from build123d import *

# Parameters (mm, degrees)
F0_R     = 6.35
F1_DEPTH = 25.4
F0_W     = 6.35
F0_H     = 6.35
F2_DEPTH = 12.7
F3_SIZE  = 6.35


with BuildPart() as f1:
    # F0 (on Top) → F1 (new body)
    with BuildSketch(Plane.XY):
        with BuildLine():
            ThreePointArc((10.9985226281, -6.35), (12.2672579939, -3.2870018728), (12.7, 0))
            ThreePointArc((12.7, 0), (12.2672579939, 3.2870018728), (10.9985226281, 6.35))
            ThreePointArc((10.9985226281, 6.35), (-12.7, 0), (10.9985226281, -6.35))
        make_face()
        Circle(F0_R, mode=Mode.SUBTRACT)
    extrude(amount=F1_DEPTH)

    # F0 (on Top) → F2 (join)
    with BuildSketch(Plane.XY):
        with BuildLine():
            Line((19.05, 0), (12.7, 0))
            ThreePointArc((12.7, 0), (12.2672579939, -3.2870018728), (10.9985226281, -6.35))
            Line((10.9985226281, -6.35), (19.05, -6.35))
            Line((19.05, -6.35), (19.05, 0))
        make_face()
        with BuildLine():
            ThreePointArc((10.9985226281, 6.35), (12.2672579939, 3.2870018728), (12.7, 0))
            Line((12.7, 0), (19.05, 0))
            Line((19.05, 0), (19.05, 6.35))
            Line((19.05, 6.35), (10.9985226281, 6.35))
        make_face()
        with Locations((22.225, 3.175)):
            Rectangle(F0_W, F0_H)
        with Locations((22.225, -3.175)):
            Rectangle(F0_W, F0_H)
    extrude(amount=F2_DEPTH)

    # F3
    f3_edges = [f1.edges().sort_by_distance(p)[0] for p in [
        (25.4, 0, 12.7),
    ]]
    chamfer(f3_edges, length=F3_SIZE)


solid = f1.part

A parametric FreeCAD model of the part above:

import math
import FreeCAD as App
import Part
import Sketcher
from FreeCAD import Vector
Q = App.Units.Quantity


def edges_at(feature, points):
    """Names of the edges that pass closest to the given points."""
    edges = feature.Shape.Edges
    near = lambda p: min(range(len(edges)), key=lambda i: edges[i].distToShape(Part.Vertex(*p))[0])
    return sorted({f"Edge{near(p) + 1}" for p in points})

doc = App.newDocument("Part")
body = doc.addObject("PartDesign::Body", "Body")

# Sketch on XY plane
sketch1 = doc.addObject("Sketcher::SketchObject", "Sketch")
body.addObject(sketch1)
sketch1.AttachmentSupport = (doc.XY_Plane, [""])
sketch1.MapMode = "FlatFace"
sketch1.addGeometry([
    Part.ArcOfCircle(Part.Circle(Vector(0, 0, 0), Vector(0, 0, 1), 13), math.radians(-30), math.radians(0)),
    Part.ArcOfCircle(Part.Circle(Vector(0, 0, 0), Vector(0, 0, 1), 13), math.radians(0), math.radians(30)),
    Part.ArcOfCircle(Part.Circle(Vector(0, 0, 0), Vector(0, 0, 1), 13), math.radians(30), math.radians(330)),
    Part.Circle(Vector(0, 0, 0), Vector(0, 0, 1), 6),
], False)
sketch1.addConstraint([
    Sketcher.Constraint("Tangent", 0, 2, 1, 1),
    Sketcher.Constraint("Tangent", 1, 2, 2, 1),
    Sketcher.Constraint("Tangent", 2, 2, 0, 1),
    Sketcher.Constraint("Coincident", 0, 3, -1, 1),
    Sketcher.Constraint("Coincident", 3, 3, -1, 1),
    Sketcher.Constraint("PointOnObject", 0, 2, -1),
    Sketcher.Constraint("Vertical", 1, 2, 2, 2),
    Sketcher.Constraint("Diameter", 3, Q("0.5 in")),
    Sketcher.Constraint("Radius", 0, Q("0.5 in")),
    Sketcher.Constraint("DistanceY", -1, 1, 1, 2, Q("0.25 in")),
])
pad1 = doc.addObject("PartDesign::Pad", "Pad")
body.addObject(pad1)
pad1.Profile = sketch1
pad1.Length = Q("1 in")

# Sketch on XY plane
sketch2 = doc.addObject("Sketcher::SketchObject", "Sketch001")
body.addObject(sketch2)
sketch2.AttachmentSupport = (doc.XY_Plane, [""])
sketch2.MapMode = "FlatFace"
sketch2.addGeometry([
    Part.ArcOfCircle(Part.Circle(Vector(0, 0, 0), Vector(0, 0, 1), 13), math.radians(-30), math.radians(0)),  # 0
    Part.LineSegment(Vector(11, -6, 0), Vector(25, -6, 0)),  # 1
    Part.LineSegment(Vector(25, -6, 0), Vector(25, 6, 0)),  # 2
    Part.LineSegment(Vector(25, 6, 0), Vector(11, 6, 0)),  # 3
    Part.ArcOfCircle(Part.Circle(Vector(0, 0, 0), Vector(0, 0, 1), 13), math.radians(0), math.radians(30)),  # 4
], False)
sketch2.addConstraint([
    Sketcher.Constraint("Coincident", 0, 1, 1, 1),
    Sketcher.Constraint("Coincident", 1, 2, 2, 1),
    Sketcher.Constraint("Coincident", 2, 2, 3, 1),
    Sketcher.Constraint("Coincident", 3, 2, 4, 2),
    Sketcher.Constraint("Tangent", 4, 1, 0, 2),
    Sketcher.Constraint("Horizontal", 1),
    Sketcher.Constraint("Vertical", 2),
    Sketcher.Constraint("Horizontal", 3),
    Sketcher.Constraint("Coincident", 0, 3, -1, 1),
    Sketcher.Constraint("Equal", 0, 4),
    Sketcher.Constraint("PointOnObject", 4, 1, -1),
    Sketcher.Constraint("Vertical", 0, 1, 3, 2),
    Sketcher.Constraint("Radius", 0, Q("0.5 in")),
    Sketcher.Constraint("DistanceY", 2, 1, 2, 2, Q("0.5 in")),
    Sketcher.Constraint("DistanceX", -1, 1, 1, 2, Q("1 in")),
])
pad2 = doc.addObject("PartDesign::Pad", "Pad001")
body.addObject(pad2)
pad2.Profile = sketch2
pad2.Length = Q("0.5 in")
doc.recompute()

chamfer = doc.addObject("PartDesign::Chamfer", "Chamfer")
body.addObject(chamfer)
chamfer.Base = (pad2, edges_at(pad2, [(25.4, 0, 12.7)]))
chamfer.Size = Q("0.25 in")

doc.recompute()
